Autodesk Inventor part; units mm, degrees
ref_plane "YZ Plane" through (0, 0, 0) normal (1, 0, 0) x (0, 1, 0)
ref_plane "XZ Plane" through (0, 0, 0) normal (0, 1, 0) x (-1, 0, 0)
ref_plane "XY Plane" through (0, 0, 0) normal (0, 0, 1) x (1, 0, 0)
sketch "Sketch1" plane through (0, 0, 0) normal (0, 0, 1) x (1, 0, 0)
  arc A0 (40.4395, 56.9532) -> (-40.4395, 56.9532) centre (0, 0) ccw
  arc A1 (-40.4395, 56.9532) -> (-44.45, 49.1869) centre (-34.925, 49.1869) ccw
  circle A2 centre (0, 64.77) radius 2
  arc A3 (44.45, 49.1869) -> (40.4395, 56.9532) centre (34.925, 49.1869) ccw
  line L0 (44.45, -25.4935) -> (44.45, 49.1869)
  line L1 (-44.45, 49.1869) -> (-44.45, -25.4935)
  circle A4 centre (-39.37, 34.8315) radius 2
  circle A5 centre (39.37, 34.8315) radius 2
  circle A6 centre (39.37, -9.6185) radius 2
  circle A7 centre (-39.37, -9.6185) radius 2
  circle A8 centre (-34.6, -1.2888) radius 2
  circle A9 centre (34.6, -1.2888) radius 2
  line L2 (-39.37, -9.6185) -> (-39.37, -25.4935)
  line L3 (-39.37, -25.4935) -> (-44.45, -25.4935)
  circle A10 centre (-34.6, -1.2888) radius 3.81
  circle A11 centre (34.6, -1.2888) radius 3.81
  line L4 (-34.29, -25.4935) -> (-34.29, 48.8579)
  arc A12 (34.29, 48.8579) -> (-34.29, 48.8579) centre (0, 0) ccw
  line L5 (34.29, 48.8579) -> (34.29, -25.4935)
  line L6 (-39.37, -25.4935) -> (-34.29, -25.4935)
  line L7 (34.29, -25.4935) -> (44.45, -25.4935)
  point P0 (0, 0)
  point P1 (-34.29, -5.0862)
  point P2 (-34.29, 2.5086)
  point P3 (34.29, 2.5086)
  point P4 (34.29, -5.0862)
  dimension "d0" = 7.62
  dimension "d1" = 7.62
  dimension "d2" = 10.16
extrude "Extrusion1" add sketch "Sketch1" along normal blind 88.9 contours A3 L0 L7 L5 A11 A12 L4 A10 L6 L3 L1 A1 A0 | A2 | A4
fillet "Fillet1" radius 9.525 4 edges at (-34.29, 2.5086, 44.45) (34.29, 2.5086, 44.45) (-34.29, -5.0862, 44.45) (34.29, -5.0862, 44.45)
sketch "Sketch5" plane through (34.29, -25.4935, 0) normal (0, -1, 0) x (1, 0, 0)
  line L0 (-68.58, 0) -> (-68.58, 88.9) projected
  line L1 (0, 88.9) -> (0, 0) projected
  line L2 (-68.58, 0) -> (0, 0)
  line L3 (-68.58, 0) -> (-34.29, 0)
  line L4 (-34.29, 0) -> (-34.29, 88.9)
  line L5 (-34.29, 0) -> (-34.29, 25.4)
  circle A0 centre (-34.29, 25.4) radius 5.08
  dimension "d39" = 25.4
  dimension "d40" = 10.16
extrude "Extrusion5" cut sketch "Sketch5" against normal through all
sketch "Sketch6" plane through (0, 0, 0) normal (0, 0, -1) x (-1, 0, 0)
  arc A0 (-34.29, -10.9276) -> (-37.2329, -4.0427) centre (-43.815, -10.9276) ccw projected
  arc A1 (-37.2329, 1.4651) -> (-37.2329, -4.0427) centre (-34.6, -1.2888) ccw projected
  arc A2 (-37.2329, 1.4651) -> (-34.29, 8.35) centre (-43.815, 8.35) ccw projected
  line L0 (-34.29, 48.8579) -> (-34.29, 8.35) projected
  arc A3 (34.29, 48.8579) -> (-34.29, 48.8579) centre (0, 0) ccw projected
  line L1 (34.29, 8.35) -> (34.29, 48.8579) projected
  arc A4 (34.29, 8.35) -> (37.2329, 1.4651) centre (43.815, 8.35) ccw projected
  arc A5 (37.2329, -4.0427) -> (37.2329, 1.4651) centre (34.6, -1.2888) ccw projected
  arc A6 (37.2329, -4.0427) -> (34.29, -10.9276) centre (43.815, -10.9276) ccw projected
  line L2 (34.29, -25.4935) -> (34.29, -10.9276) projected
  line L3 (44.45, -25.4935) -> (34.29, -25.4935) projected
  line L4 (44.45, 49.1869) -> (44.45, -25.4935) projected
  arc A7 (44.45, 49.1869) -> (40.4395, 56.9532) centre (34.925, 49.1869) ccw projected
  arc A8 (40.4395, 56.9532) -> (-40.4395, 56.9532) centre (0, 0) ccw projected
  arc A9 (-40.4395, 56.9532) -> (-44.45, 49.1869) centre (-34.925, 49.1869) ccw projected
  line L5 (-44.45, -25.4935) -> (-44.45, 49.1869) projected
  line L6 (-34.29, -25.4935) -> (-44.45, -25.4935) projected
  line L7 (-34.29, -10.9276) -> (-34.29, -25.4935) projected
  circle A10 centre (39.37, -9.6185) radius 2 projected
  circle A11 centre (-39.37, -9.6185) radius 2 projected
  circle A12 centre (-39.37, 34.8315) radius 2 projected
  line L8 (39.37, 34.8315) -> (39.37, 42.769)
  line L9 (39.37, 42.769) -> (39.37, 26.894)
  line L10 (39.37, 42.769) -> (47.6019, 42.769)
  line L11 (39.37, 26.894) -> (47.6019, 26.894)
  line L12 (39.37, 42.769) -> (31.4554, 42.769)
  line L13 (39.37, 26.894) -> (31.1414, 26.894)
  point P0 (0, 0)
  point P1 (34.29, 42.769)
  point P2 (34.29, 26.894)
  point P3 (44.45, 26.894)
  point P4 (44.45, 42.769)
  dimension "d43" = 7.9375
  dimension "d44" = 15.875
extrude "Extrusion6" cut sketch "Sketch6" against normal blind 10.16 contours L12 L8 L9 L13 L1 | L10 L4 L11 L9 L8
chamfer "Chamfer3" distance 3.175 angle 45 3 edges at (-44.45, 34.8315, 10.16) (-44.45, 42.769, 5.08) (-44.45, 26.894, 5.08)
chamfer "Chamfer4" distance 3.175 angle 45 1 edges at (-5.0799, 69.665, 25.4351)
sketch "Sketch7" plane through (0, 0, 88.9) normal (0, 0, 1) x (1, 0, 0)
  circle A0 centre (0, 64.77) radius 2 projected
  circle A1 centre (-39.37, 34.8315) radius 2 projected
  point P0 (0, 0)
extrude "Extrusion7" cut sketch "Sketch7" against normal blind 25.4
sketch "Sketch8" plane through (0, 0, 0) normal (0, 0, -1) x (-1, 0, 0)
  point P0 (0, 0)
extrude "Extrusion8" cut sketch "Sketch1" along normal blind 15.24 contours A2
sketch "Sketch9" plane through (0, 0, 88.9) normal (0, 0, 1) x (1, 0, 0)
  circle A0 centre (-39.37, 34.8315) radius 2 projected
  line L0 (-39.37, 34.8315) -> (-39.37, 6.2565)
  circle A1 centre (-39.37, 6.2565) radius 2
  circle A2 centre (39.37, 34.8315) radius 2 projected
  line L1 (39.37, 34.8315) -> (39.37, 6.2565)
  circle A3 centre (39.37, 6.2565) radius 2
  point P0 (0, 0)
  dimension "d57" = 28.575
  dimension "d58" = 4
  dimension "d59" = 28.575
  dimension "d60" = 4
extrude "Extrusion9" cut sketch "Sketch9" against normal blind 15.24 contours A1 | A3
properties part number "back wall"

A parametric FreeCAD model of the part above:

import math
import FreeCAD as App
import Part
import Sketcher
from FreeCAD import Vector
Q = App.Units.Quantity


def edges_at(feature, points):
    """Names of the edges that pass closest to the given points."""
    edges = feature.Shape.Edges
    near = lambda p: min(range(len(edges)), key=lambda i: edges[i].distToShape(Part.Vertex(*p))[0])
    return sorted({f"Edge{near(p) + 1}" for p in points})

doc = App.newDocument("Part")
body = doc.addObject("PartDesign::Body", "Body")

# Sketch on XY plane
sketch1 = doc.addObject("Sketcher::SketchObject", "Sketch")
body.addObject(sketch1)
sketch1.AttachmentSupport = (doc.XY_Plane, [""])
sketch1.MapMode = "FlatFace"
sketch1.addGeometry([
    Part.ArcOfCircle(Part.Circle(Vector(34.9, 49.2, 0), Vector(0, 0, 1), 9.5), math.radians(0), math.radians(55)),  # 0
    Part.ArcOfCircle(Part.Circle(Vector(0, 0, 0), Vector(0, 0, 1), 69.8), math.radians(55), math.radians(125)),  # 1
    Part.ArcOfCircle(Part.Circle(Vector(-34.9, 49.2, 0), Vector(0, 0, 1), 9.5), math.radians(125), math.radians(180)),  # 2
    Part.LineSegment(Vector(-44.5, 49.2, 0), Vector(-44.5, -25.5, 0)),  # 3
    Part.LineSegment(Vector(-44.5, -25.5, 0), Vector(-39.4, -25.5, 0)),  # 4
    Part.LineSegment(Vector(-39.4, -25.5, 0), Vector(-34.3, -25.5, 0)),  # 5
    Part.LineSegment(Vector(-34.3, -25.5, 0), Vector(-34.3, -5.1, 0)),  # 6
    Part.ArcOfCircle(Part.Circle(Vector(-34.6, -1.3, 0), Vector(0, 0, 1), 3.8), math.radians(85), math.radians(275)),  # 7
    Part.LineSegment(Vector(-34.3, 2.5, 0), Vector(-34.3, 48.9, 0)),  # 8
    Part.ArcOfCircle(Part.Circle(Vector(0, 0, 0), Vector(0, 0, 1), 59.7), math.radians(55), math.radians(125)),  # 9
    Part.LineSegment(Vector(34.3, 48.9, 0), Vector(34.3, 2.5, 0)),  # 10
    Part.ArcOfCircle(Part.Circle(Vector(34.6, -1.3, 0), Vector(0, 0, 1), 3.8), math.radians(-95), math.radians(95)),  # 11
    Part.LineSegment(Vector(34.3, -5.1, 0), Vector(34.3, -25.5, 0)),  # 12
    Part.LineSegment(Vector(34.3, -25.5, 0), Vector(44.5, -25.5, 0)),  # 13
    Part.LineSegment(Vector(44.5, -25.5, 0), Vector(44.5, 49.2, 0)),  # 14
    Part.Circle(Vector(-39.4, -9.6, 0), Vector(0, 0, 1), 2),  # 15
    Part.Circle(Vector(39.4, -9.6, 0), Vector(0, 0, 1), 2),  # 16
    Part.Circle(Vector(39.4, 34.8, 0), Vector(0, 0, 1), 2),  # 17
], False)
sketch1.addConstraint([
    Sketcher.Constraint("Tangent", 0, 2, 1, 1),
    Sketcher.Constraint("Tangent", 1, 2, 2, 1),
    Sketcher.Constraint("Tangent", 2, 2, 3, 1),
    Sketcher.Constraint("Coincident", 3, 2, 4, 1),
    Sketcher.Constraint("Coincident", 4, 2, 5, 1),
    Sketcher.Constraint("Coincident", 5, 2, 6, 1),
    Sketcher.Constraint("Coincident", 6, 2, 7, 2),
    Sketcher.Constraint("Coincident", 7, 1, 8, 1),
    Sketcher.Constraint("Coincident", 8, 2, 9, 2),
    Sketcher.Constraint("Coincident", 9, 1, 10, 1),
    Sketcher.Constraint("Coincident", 10, 2, 11, 2),
    Sketcher.Constraint("Coincident", 11, 1, 12, 1),
    Sketcher.Constraint("Coincident", 12, 2, 13, 1),
    Sketcher.Constraint("Coincident", 13, 2, 14, 1),
    Sketcher.Constraint("Tangent", 14, 2, 0, 1),
    Sketcher.Constraint("Vertical", 3),
    Sketcher.Constraint("Horizontal", 4),
    Sketcher.Constraint("Horizontal", 5),
    Sketcher.Constraint("Vertical", 6),
    Sketcher.Constraint("Vertical", 8),
    Sketcher.Constraint("Vertical", 10),
    Sketcher.Constraint("Vertical", 12),
    Sketcher.Constraint("Horizontal", 13),
    Sketcher.Constraint("Vertical", 14),
    Sketcher.Constraint("Coincident", 1, 3, -1, 1),
    Sketcher.Constraint("Coincident", 9, 3, -1, 1),
    Sketcher.Constraint("Equal", 0, 2),
    Sketcher.Constraint("Equal", 7, 11),
    Sketcher.Constraint("Equal", 15, 16),
    Sketcher.Constraint("Equal", 16, 17),
    Sketcher.Constraint("Symmetric", 7, 3, 11, 3, -2),
    Sketcher.Constraint("Symmetric", 15, 3, 16, 3, -2),
    Sketcher.Constraint("Symmetric", 5, 2, 12, 2, -2),
    Sketcher.Constraint("Horizontal", 0, 3, 2, 3),
    Sketcher.Constraint("Horizontal", 8, 2, 9, 1),
    Sketcher.Constraint("Vertical", 16, 3, 17, 3),
    Sketcher.Constraint("Vertical", 15, 3, 4, 2),
    Sketcher.Constraint("Vertical", 6, 2, 7, 1),
    Sketcher.Constraint("Equal", 4, 5),
    Sketcher.Constraint("Radius", 7, Q("0.15 in")),
    Sketcher.Constraint("DistanceX", 13, 1, 13, 2, Q("0.4 in")),
    Sketcher.Constraint("Radius", 1, Q("2.75 in")),
    Sketcher.Constraint("Radius", 9, Q("2.35 in")),
    Sketcher.Constraint("Radius", 0, Q("0.375 in")),
    Sketcher.Constraint("Diameter", 15, Q("4 mm")),
    Sketcher.Constraint("DistanceX", 15, 3, -1, 1, Q("1.55 in")),
    Sketcher.Constraint("DistanceY", 16, 3, 17, 3, Q("1.75 in")),
    Sketcher.Constraint("DistanceY", 11, 3, 0, 2, Q("2.293 in")),
    Sketcher.Constraint("DistanceY", 3, 2, 15, 3, Q("0.625 in")),
    Sketcher.Constraint("DistanceY", 6, 2, 7, 1, Q("0.299 in")),
    Sketcher.Constraint("DistanceY", 3, 2, 3, 1, Q("74.6804 mm")),
])
pad1 = doc.addObject("PartDesign::Pad", "Pad")
body.addObject(pad1)
pad1.Profile = sketch1
pad1.Length = Q("3.5 in")
doc.recompute()

fillet = doc.addObject("PartDesign::Fillet", "Fillet")
body.addObject(fillet)
fillet.Base = (pad1, edges_at(pad1, [
    (-34.29, 2.509, 44.45),
    (34.29, 2.509, 44.45),
    (-34.29, -5.086, 44.45),
    (34.29, -5.086, 44.45),
]))
fillet.Radius = Q("0.375 in")

# Sketch on XZ plane
sketch2 = doc.addObject("Sketcher::SketchObject", "Sketch001")
body.addObject(sketch2)
sketch2.AttachmentSupport = (doc.XZ_Plane, [""])
sketch2.MapMode = "FlatFace"
sketch2.AttachmentOffset = App.Placement(Vector(0, 0, 25.4935), App.Rotation())
sketch2.addGeometry(Part.Circle(Vector(0, 25, 0), Vector(0, 0, 1), 5), False)
sketch2.addConstraint([
    Sketcher.Constraint("PointOnObject", 0, 3, -2),
    Sketcher.Constraint("Diameter", 0, Q("0.4 in")),
    Sketcher.Constraint("DistanceY", -1, 1, 0, 3, Q("1 in")),
])
pocket1 = doc.addObject("PartDesign::Pocket", "Pocket")
body.addObject(pocket1)
pocket1.Profile = sketch2
pocket1.Type = "ThroughAll"

# Sketch on XY plane
sketch3 = doc.addObject("Sketcher::SketchObject", "Sketch002")
body.addObject(sketch3)
sketch3.AttachmentSupport = (doc.XY_Plane, [""])
sketch3.MapMode = "FlatFace"
sketch3.addGeometry([
    Part.LineSegment(Vector(-34, 43, 0), Vector(-34, 27, 0)),
    Part.LineSegment(Vector(-34, 27, 0), Vector(-44, 27, 0)),
    Part.LineSegment(Vector(-44, 27, 0), Vector(-44, 43, 0)),
    Part.LineSegment(Vector(-44, 43, 0), Vector(-34, 43, 0)),
], False)
sketch3.addConstraint([
    Sketcher.Constraint("Coincident", 0, 2, 1, 1),
    Sketcher.Constraint("Coincident", 1, 2, 2, 1),
    Sketcher.Constraint("Coincident", 2, 2, 3, 1),
    Sketcher.Constraint("Coincident", 3, 2, 0, 1),
    Sketcher.Constraint("Vertical", 0),
    Sketcher.Constraint("Horizontal", 1),
    Sketcher.Constraint("Vertical", 2),
    Sketcher.Constraint("Horizontal", 3),
    Sketcher.Constraint("DistanceY", 0, 2, 0, 1, Q("0.625 in")),
    Sketcher.Constraint("DistanceX", 1, 2, 1, 1, Q("0.4 in")),
    Sketcher.Constraint("DistanceX", 0, 2, -1, 1, Q("1.35 in")),
    Sketcher.Constraint("DistanceY", -1, 1, 0, 2, Q("26.894 mm")),
])
pocket2 = doc.addObject("PartDesign::Pocket", "Pocket001")
body.addObject(pocket2)
pocket2.Profile = sketch3
pocket2.Length = Q("0.4 in")
pocket2.Reversed = True
doc.recompute()

chamfer = doc.addObject("PartDesign::Chamfer", "Chamfer")
body.addObject(chamfer)
chamfer.Base = (pocket2, edges_at(pocket2, [(-44.45, 34.831, 10.16), (-44.45, 42.769, 5.08), (-44.45, 26.894, 5.08)]))
chamfer.Size = Q("0.125 in")
doc.recompute()

chamfer2 = doc.addObject("PartDesign::Chamfer", "Chamfer001")
body.addObject(chamfer2)
chamfer2.Base = (chamfer, edges_at(chamfer, [(-5.08, 69.665, 25.435)]))
chamfer2.Size = Q("0.125 in")

# Sketch on XY plane
sketch4 = doc.addObject("Sketcher::SketchObject", "Sketch003")
body.addObject(sketch4)
sketch4.AttachmentSupport = (doc.XY_Plane, [""])
sketch4.MapMode = "FlatFace"
sketch4.AttachmentOffset = App.Placement(Vector(0, 0, 3.5 * 25.4), App.Rotation())
sketch4.addGeometry([
    Part.Circle(Vector(0, 64.8, 0), Vector(0, 0, 1), 2),
    Part.Circle(Vector(-39.4, 34.8, 0), Vector(0, 0, 1), 2),
], False)
sketch4.addConstraint([
    Sketcher.Constraint("Equal", 0, 1),
    Sketcher.Constraint("PointOnObject", 0, 3, -2),
    Sketcher.Constraint("Diameter", 0, Q("4 mm")),
    Sketcher.Constraint("DistanceY", -1, 1, 0, 3, Q("2.55 in")),
    Sketcher.Constraint("DistanceX", 1, 3, -1, 1, Q("1.55 in")),
    Sketcher.Constraint("DistanceY", -1, 1, 1, 3, Q("34.8315 mm")),
])
pocket3 = doc.addObject("PartDesign::Pocket", "Pocket002")
body.addObject(pocket3)
pocket3.Profile = sketch4
pocket3.Length = Q("1 in")

# Sketch on XY plane
sketch5 = doc.addObject("Sketcher::SketchObject", "Sketch004")
body.addObject(sketch5)
sketch5.AttachmentSupport = (doc.XY_Plane, [""])
sketch5.MapMode = "FlatFace"
sketch5.addGeometry(Part.Circle(Vector(0, 64.8, 0), Vector(0, 0, 1), 2), False)
sketch5.addConstraint([
    Sketcher.Constraint("PointOnObject", 0, 3, -2),
    Sketcher.Constraint("Diameter", 0, Q("4 mm")),
    Sketcher.Constraint("DistanceY", -1, 1, 0, 3, Q("2.55 in")),
])
pocket4 = doc.addObject("PartDesign::Pocket", "Pocket003")
body.addObject(pocket4)
pocket4.Profile = sketch5
pocket4.Length = Q("0.6 in")
pocket4.Reversed = True

# Sketch on XY plane
sketch6 = doc.addObject("Sketcher::SketchObject", "Sketch005")
body.addObject(sketch6)
sketch6.AttachmentSupport = (doc.XY_Plane, [""])
sketch6.MapMode = "FlatFace"
sketch6.AttachmentOffset = App.Placement(Vector(0, 0, 3.5 * 25.4), App.Rotation())
sketch6.addGeometry([
    Part.Circle(Vector(-39.4, 6.3, 0), Vector(0, 0, 1), 2),
    Part.Circle(Vector(39.4, 6.3, 0), Vector(0, 0, 1), 2),
], False)
sketch6.addConstraint([
    Sketcher.Constraint("Equal", 0, 1),
    Sketcher.Constraint("Symmetric", 0, 3, 1, 3, -2),
    Sketcher.Constraint("Diameter", 0, Q("4 mm")),
    Sketcher.Constraint("DistanceX", 0, 3, 1, 3, Q("3.1 in")),
    Sketcher.Constraint("DistanceY", -1, 1, 0, 3, Q("6.2565 mm")),
])
pocket5 = doc.addObject("PartDesign::Pocket", "Pocket004")
body.addObject(pocket5)
pocket5.Profile = sketch6
pocket5.Length = Q("0.6 in")

doc.recompute()
